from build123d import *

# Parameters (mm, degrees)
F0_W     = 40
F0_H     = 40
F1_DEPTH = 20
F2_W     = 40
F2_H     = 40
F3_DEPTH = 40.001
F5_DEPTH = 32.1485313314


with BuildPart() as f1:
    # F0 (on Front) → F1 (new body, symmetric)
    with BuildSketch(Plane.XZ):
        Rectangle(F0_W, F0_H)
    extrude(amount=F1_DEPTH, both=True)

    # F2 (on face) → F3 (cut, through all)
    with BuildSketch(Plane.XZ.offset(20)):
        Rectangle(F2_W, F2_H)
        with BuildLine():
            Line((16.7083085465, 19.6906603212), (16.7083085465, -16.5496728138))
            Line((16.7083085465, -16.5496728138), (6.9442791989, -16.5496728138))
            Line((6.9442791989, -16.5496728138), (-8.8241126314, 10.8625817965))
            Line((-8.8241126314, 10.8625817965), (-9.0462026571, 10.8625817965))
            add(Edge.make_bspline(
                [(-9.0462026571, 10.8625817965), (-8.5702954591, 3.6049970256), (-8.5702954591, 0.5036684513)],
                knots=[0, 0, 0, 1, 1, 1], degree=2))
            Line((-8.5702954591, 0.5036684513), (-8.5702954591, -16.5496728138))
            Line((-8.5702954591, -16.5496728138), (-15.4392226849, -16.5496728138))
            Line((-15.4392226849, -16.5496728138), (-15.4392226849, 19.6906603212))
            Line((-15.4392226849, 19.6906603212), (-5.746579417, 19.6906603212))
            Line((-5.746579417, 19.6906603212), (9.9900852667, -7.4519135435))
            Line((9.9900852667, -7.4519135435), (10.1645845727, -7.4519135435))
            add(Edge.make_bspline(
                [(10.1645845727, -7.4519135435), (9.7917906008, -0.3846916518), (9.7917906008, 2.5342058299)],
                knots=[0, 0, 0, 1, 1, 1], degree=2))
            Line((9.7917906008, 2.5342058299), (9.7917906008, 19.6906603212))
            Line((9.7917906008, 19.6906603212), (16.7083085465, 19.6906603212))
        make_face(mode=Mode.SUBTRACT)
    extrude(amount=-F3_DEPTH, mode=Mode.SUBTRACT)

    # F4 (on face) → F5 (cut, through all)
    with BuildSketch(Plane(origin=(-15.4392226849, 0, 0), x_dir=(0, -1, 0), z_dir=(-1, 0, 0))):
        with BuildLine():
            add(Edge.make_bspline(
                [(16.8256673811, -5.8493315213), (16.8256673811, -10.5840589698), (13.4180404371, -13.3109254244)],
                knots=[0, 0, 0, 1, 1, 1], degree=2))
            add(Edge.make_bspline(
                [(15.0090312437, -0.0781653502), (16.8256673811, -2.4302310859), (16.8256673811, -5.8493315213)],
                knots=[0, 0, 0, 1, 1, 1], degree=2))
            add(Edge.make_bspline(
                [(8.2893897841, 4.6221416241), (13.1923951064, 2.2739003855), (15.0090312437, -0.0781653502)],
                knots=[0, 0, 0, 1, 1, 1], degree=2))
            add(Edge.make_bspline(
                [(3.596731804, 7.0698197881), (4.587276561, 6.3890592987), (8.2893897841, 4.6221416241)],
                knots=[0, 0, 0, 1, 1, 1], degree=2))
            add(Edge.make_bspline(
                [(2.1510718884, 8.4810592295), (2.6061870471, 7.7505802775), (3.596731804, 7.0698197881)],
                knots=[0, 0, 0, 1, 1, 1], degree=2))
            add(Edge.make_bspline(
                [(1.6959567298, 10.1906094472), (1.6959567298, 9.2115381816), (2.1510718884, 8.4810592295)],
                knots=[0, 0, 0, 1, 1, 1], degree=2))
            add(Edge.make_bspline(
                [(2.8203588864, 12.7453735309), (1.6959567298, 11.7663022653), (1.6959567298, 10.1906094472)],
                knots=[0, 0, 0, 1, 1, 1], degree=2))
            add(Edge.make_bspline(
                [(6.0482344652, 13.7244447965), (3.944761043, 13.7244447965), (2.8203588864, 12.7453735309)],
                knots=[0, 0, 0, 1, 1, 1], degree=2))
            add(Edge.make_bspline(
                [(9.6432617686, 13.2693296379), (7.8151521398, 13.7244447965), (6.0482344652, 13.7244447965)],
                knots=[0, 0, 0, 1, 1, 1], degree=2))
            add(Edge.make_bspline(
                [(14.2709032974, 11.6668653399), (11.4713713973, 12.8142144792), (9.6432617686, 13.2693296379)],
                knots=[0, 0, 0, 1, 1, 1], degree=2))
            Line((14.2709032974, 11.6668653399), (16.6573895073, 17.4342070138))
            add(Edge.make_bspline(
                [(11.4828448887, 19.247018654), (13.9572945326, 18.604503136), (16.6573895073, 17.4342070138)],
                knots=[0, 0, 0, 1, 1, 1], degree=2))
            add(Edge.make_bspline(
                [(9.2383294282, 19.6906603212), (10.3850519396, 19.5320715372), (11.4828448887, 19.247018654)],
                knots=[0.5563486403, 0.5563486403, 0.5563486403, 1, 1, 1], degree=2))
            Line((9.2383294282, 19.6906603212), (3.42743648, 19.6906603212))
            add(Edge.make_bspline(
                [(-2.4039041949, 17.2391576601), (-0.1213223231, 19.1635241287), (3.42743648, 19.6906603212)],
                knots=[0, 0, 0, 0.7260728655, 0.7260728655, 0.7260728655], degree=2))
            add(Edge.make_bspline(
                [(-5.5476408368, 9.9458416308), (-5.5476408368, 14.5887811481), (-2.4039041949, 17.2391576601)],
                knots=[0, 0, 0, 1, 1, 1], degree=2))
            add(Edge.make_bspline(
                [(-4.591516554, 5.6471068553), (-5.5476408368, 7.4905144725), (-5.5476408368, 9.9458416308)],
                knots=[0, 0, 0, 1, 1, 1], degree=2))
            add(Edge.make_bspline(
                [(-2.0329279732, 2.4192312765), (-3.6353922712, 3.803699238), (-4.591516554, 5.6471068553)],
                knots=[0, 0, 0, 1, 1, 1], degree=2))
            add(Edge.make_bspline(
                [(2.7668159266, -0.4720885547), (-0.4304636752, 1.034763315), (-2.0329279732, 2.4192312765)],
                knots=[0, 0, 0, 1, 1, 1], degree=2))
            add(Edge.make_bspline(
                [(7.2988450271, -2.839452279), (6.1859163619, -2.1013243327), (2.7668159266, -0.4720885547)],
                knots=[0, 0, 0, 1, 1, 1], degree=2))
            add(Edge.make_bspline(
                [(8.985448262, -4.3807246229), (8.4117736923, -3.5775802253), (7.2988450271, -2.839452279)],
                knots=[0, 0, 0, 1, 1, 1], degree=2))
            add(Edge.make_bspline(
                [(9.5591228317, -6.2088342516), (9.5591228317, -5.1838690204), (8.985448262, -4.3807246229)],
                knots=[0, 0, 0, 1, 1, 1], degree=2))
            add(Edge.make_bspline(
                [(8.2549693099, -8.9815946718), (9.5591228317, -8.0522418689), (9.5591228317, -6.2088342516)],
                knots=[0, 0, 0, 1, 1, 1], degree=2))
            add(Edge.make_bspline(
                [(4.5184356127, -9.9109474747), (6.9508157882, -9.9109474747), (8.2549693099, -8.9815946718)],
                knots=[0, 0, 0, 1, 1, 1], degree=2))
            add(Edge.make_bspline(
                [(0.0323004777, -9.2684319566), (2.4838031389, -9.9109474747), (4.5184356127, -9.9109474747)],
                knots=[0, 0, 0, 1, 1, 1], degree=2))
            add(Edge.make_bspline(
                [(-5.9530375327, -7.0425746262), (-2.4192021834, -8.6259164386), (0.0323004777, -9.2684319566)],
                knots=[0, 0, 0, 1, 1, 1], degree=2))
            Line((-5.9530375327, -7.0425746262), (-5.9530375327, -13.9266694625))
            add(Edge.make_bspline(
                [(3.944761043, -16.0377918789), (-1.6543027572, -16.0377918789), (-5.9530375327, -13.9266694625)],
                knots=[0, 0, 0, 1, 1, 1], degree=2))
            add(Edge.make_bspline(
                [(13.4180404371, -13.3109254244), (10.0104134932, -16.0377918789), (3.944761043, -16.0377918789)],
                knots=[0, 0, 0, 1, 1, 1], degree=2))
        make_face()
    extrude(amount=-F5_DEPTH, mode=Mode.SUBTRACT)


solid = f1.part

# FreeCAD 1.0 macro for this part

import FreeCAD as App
import Part
import Sketcher
from FreeCAD import Vector

doc = App.newDocument("Part")
body = doc.addObject("PartDesign::Body", "Body")

# Sketch on XZ plane
sketch1 = doc.addObject("Sketcher::SketchObject", "Sketch")
body.addObject(sketch1)
sketch1.AttachmentSupport = (doc.XZ_Plane, [""])
sketch1.MapMode = "FlatFace"
sketch1.addGeometry(Part.LineSegment(Vector(-20, 20, 0), Vector(-20, -20, 0)), False)
sketch1.addGeometry(Part.LineSegment(Vector(-20, -20, 0), Vector(20, -20, 0)), False)
sketch1.addGeometry(Part.LineSegment(Vector(20, -20, 0), Vector(20, 20, 0)), False)
sketch1.addGeometry(Part.LineSegment(Vector(20, 20, 0), Vector(-20, 20, 0)), False)
sketch1.addConstraint(Sketcher.Constraint("Coincident", 0, 2, 1, 1))
sketch1.addConstraint(Sketcher.Constraint("Coincident", 1, 2, 2, 1))
sketch1.addConstraint(Sketcher.Constraint("Coincident", 2, 2, 3, 1))
sketch1.addConstraint(Sketcher.Constraint("Coincident", 3, 2, 0, 1))
sketch1.addConstraint(Sketcher.Constraint("Vertical", 0))
sketch1.addConstraint(Sketcher.Constraint("Horizontal", 1))
sketch1.addConstraint(Sketcher.Constraint("Vertical", 2))
sketch1.addConstraint(Sketcher.Constraint("Horizontal", 3))
sketch1.addConstraint(Sketcher.Constraint("Symmetric", 0, 2, 2, 2, -1, 1))
sketch1.addConstraint(Sketcher.Constraint("Equal", 3, 0))
sketch1.addConstraint(Sketcher.Constraint("DistanceX", 1, 1, 1, 2, 40.0))
pad1 = doc.addObject("PartDesign::Pad", "Pad")
body.addObject(pad1)
pad1.Profile = sketch1
pad1.Length = 40
pad1.Midplane = True

# Sketch on XZ plane
sketch2 = doc.addObject("Sketcher::SketchObject", "Sketch001")
body.addObject(sketch2)
sketch2.AttachmentSupport = (doc.XZ_Plane, [""])
sketch2.MapMode = "FlatFace"
sketch2.AttachmentOffset = App.Placement(Vector(0, 0, 20), App.Rotation())
sketch2.addGeometry(Part.LineSegment(Vector(-20, 20, 0), Vector(-20, -20, 0)), False)
sketch2.addGeometry(Part.LineSegment(Vector(-20, -20, 0), Vector(20, -20, 0)), False)
sketch2.addGeometry(Part.LineSegment(Vector(20, -20, 0), Vector(20, 20, 0)), False)
sketch2.addGeometry(Part.LineSegment(Vector(20, 20, 0), Vector(-20, 20, 0)), False)
sketch2.addGeometry(Part.LineSegment(Vector(9.791791, 19.69066, 0), Vector(16.708309, 19.69066, 0)), False)
sketch2.addGeometry(Part.LineSegment(Vector(16.708309, 19.69066, 0), Vector(16.708309, -16.549673, 0)), False)
sketch2.addGeometry(Part.LineSegment(Vector(16.708309, -16.549673, 0), Vector(6.944279, -16.549673, 0)), False)
sketch2.addGeometry(Part.LineSegment(Vector(6.944279, -16.549673, 0), Vector(-8.824113, 10.862582, 0)), False)
sketch2.addGeometry(Part.LineSegment(Vector(-8.824113, 10.862582, 0), Vector(-9.046203, 10.862582, 0)), False)
sketch2.addGeometry(Part.BSplineCurve([Vector(-9.046203, 10.862582, 0), Vector(-8.570295, 3.604997, 0), Vector(-8.570295, 0.503668, 0)], [3, 3], [0, 1], False, 2, [1, 1, 1], False), False)
sketch2.addGeometry(Part.LineSegment(Vector(-8.570295, 0.503668, 0), Vector(-8.570295, -16.549673, 0)), False)
sketch2.addGeometry(Part.LineSegment(Vector(-8.570295, -16.549673, 0), Vector(-15.439223, -16.549673, 0)), False)
sketch2.addGeometry(Part.LineSegment(Vector(-15.439223, -16.549673, 0), Vector(-15.439223, 19.69066, 0)), False)
sketch2.addGeometry(Part.LineSegment(Vector(-15.439223, 19.69066, 0), Vector(-5.746579, 19.69066, 0)), False)
sketch2.addGeometry(Part.LineSegment(Vector(-5.746579, 19.69066, 0), Vector(9.990085, -7.451914, 0)), False)
sketch2.addGeometry(Part.LineSegment(Vector(9.990085, -7.451914, 0), Vector(10.164585, -7.451914, 0)), False)
sketch2.addGeometry(Part.BSplineCurve([Vector(10.164585, -7.451914, 0), Vector(9.791791, -0.384692, 0), Vector(9.791791, 2.534206, 0)], [3, 3], [0, 1], False, 2, [1, 1, 1], False), False)
sketch2.addGeometry(Part.LineSegment(Vector(9.791791, 2.534206, 0), Vector(9.791791, 19.69066, 0)), False)
sketch2.addConstraint(Sketcher.Constraint("Block", 9))
sketch2.addConstraint(Sketcher.Constraint("Block", 16))
sketch2.addConstraint(Sketcher.Constraint("Coincident", 0, 2, 1, 1))
sketch2.addConstraint(Sketcher.Constraint("Coincident", 1, 2, 2, 1))
sketch2.addConstraint(Sketcher.Constraint("Coincident", 2, 2, 3, 1))
sketch2.addConstraint(Sketcher.Constraint("Coincident", 3, 2, 0, 1))
sketch2.addConstraint(Sketcher.Constraint("Coincident", 4, 2, 5, 1))
sketch2.addConstraint(Sketcher.Constraint("Coincident", 5, 2, 6, 1))
sketch2.addConstraint(Sketcher.Constraint("Coincident", 6, 2, 7, 1))
sketch2.addConstraint(Sketcher.Constraint("Coincident", 7, 2, 8, 1))
sketch2.addConstraint(Sketcher.Constraint("Coincident", 8, 2, 9, 1))
sketch2.addConstraint(Sketcher.Constraint("Coincident", 9, 2, 10, 1))
sketch2.addConstraint(Sketcher.Constraint("Coincident", 10, 2, 11, 1))
sketch2.addConstraint(Sketcher.Constraint("Coincident", 11, 2, 12, 1))
sketch2.addConstraint(Sketcher.Constraint("Coincident", 12, 2, 13, 1))
sketch2.addConstraint(Sketcher.Constraint("Coincident", 13, 2, 14, 1))
sketch2.addConstraint(Sketcher.Constraint("Coincident", 14, 2, 15, 1))
sketch2.addConstraint(Sketcher.Constraint("Coincident", 15, 2, 16, 1))
sketch2.addConstraint(Sketcher.Constraint("Coincident", 16, 2, 17, 1))
sketch2.addConstraint(Sketcher.Constraint("Coincident", 17, 2, 4, 1))
sketch2.addConstraint(Sketcher.Constraint("Vertical", 0))
sketch2.addConstraint(Sketcher.Constraint("Horizontal", 1))
sketch2.addConstraint(Sketcher.Constraint("Vertical", 2))
sketch2.addConstraint(Sketcher.Constraint("Horizontal", 3))
sketch2.addConstraint(Sketcher.Constraint("Horizontal", 4))
sketch2.addConstraint(Sketcher.Constraint("Vertical", 5))
sketch2.addConstraint(Sketcher.Constraint("Horizontal", 6))
sketch2.addConstraint(Sketcher.Constraint("Horizontal", 8))
sketch2.addConstraint(Sketcher.Constraint("Vertical", 10))
sketch2.addConstraint(Sketcher.Constraint("Horizontal", 11))
sketch2.addConstraint(Sketcher.Constraint("Vertical", 12))
sketch2.addConstraint(Sketcher.Constraint("Horizontal", 13))
sketch2.addConstraint(Sketcher.Constraint("Horizontal", 15))
sketch2.addConstraint(Sketcher.Constraint("Vertical", 17))
sketch2.addConstraint(Sketcher.Constraint("Symmetric", 0, 2, 2, 2, -1, 1))
sketch2.addConstraint(Sketcher.Constraint("Horizontal", 6, 2, 10, 2))
sketch2.addConstraint(Sketcher.Constraint("Horizontal", 4, 2, 12, 2))
sketch2.addConstraint(Sketcher.Constraint("Equal", 3, 0))
sketch2.addConstraint(Sketcher.Constraint("DistanceX", 1, 1, 1, 2, 40.0))
sketch2.addConstraint(Sketcher.Constraint("DistanceX", 15, 1, 15, 2, 0.174499))
sketch2.addConstraint(Sketcher.Constraint("DistanceX", 6, 2, 6, 1, 9.764029))
sketch2.addConstraint(Sketcher.Constraint("DistanceX", 8, 2, 8, 1, 0.22209))
sketch2.addConstraint(Sketcher.Constraint("DistanceY", 10, 2, 10, 1, 17.053341))
sketch2.addConstraint(Sketcher.Constraint("DistanceX", 11, 2, 6, 2, 22.383502))
sketch2.addConstraint(Sketcher.Constraint("DistanceX", 4, 1, 4, 2, 6.916518))
sketch2.addConstraint(Sketcher.Constraint("DistanceX", 13, 1, 13, 2, 9.692643))
sketch2.addConstraint(Sketcher.Constraint("DistanceY", 5, 2, 5, 1, 36.240333))
pocket1 = doc.addObject("PartDesign::Pocket", "Pocket")
body.addObject(pocket1)
pocket1.Profile = sketch2
pocket1.Type = "ThroughAll"

# Sketch on YZ plane
sketch3 = doc.addObject("Sketcher::SketchObject", "Sketch002")
body.addObject(sketch3)
sketch3.AttachmentSupport = (doc.YZ_Plane, [""])
sketch3.MapMode = "FlatFace"
sketch3.AttachmentOffset = App.Placement(Vector(0, 0, -15.439223), App.Rotation())
sketch3.addGeometry(Part.BSplineCurve([Vector(-15.009031, -0.078165, 0), Vector(-16.825667, -2.430231, 0), Vector(-16.825667, -10.584059, 0), Vector(-13.41804, -13.310925, 0)], [3, 1, 3], [0, 1, 2.384787472], False, 2, [1, 1, 1, 1], False), False)
sketch3.addGeometry(Part.BSplineCurve([Vector(-8.28939, 4.622142, 0), Vector(-13.192395, 2.2739, 0), Vector(-15.009031, -0.078165, 0)], [3, 3], [0, 1], False, 2, [1, 1, 1], False), False)
sketch3.addGeometry(Part.BSplineCurve([Vector(-3.596732, 7.06982, 0), Vector(-4.587277, 6.389059, 0), Vector(-8.28939, 4.622142, 0)], [3, 3], [0, 1], False, 2, [1, 1, 1], False), False)
sketch3.addGeometry(Part.BSplineCurve([Vector(-2.151072, 8.481059, 0), Vector(-2.606187, 7.75058, 0), Vector(-3.596732, 7.06982, 0)], [3, 3], [0, 1], False, 2, [1, 1, 1], False), False)
sketch3.addGeometry(Part.BSplineCurve([Vector(-9.643262, 13.26933, 0), Vector(-7.815152, 13.724445, 0), Vector(-3.944761, 13.724445, 0), Vector(-1.695957, 11.766302, 0), Vector(-1.695957, 9.211538, 0), Vector(-2.151072, 8.481059, 0)], [3, 1, 1, 1, 3], [0, 1, 2.190476191, 3.380952381, 4.120665742], False, 2, [1, 1, 1, 1, 1, 1], False), False)
sketch3.addGeometry(Part.BSplineCurve([Vector(-14.270903, 11.666865, 0), Vector(-11.471371, 12.814214, 0), Vector(-9.643262, 13.26933, 0)], [3, 3], [0, 1], False, 2, [1, 1, 1], False), False)
sketch3.addGeometry(Part.LineSegment(Vector(-14.270903, 11.666865, 0), Vector(-16.65739, 17.434207, 0)), False)
sketch3.addGeometry(Part.BSplineCurve([Vector(-11.482845, 19.247019, 0), Vector(-13.957295, 18.604503, 0), Vector(-16.65739, 17.434207, 0)], [3, 3], [0, 1], False, 2, [1, 1, 1], False), False)
sketch3.addGeometry(Part.BSplineCurve([Vector(-9.238329, 19.69066, 0), Vector(-10.385052, 19.532072, 0), Vector(-11.482845, 19.247019, 0)], [3, 3], [0.55634864, 1], False, 2, [1, 1, 1], False), False)
sketch3.addGeometry(Part.LineSegment(Vector(-9.238329, 19.69066, 0), Vector(-3.427436, 19.69066, 0)), False)
sketch3.addGeometry(Part.BSplineCurve([Vector(2.403904, 17.239158, 0), Vector(0.121322, 19.163524, 0), Vector(-3.427436, 19.69066, 0)], [3, 3], [0, 0.726072866], False, 2, [1, 1, 1], False), False)
sketch3.addGeometry(Part.BSplineCurve([Vector(4.591517, 5.647107, 0), Vector(5.547641, 7.490514, 0), Vector(5.547641, 14.588781, 0), Vector(2.403904, 17.239158, 0)], [3, 1, 3], [0, 1, 2.890965732], False, 2, [1, 1, 1, 1], False), False)
sketch3.addGeometry(Part.BSplineCurve([Vector(-2.766816, -0.472089, 0), Vector(0.430464, 1.034763, 0), Vector(3.635392, 3.803699, 0), Vector(4.591517, 5.647107, 0)], [3, 1, 3], [0, 1, 2], False, 2, [1, 1, 1, 1], False), False)
sketch3.addGeometry(Part.BSplineCurve([Vector(-8.985448, -4.380725, 0), Vector(-8.411774, -3.57758, 0), Vector(-6.185916, -2.101324, 0), Vector(-2.766816, -0.472089, 0)], [3, 1, 3], [0, 1, 2], False, 2, [1, 1, 1, 1], False), False)
sketch3.addGeometry(Part.BSplineCurve([Vector(-8.254969, -8.981595, 0), Vector(-9.559123, -8.052242, 0), Vector(-9.559123, -5.183869, 0), Vector(-8.985448, -4.380725, 0)], [3, 1, 3], [0, 1, 1.556016598], False, 2, [1, 1, 1, 1], False), False)
sketch3.addGeometry(Part.BSplineCurve([Vector(-0.0323, -9.268432, 0), Vector(-2.483803, -9.910947, 0), Vector(-6.950816, -9.910947, 0), Vector(-8.254969, -8.981595, 0)], [3, 1, 3], [0, 1, 2.195488722], False, 2, [1, 1, 1, 1], False), False)
sketch3.addGeometry(Part.BSplineCurve([Vector(5.953038, -7.042575, 0), Vector(2.419202, -8.625916, 0), Vector(-0.0323, -9.268432, 0)], [3, 3], [0, 1], False, 2, [1, 1, 1], False), False)
sketch3.addGeometry(Part.LineSegment(Vector(5.953038, -7.042575, 0), Vector(5.953038, -13.926669, 0)), False)
sketch3.addGeometry(Part.BSplineCurve([Vector(-13.41804, -13.310925, 0), Vector(-10.010413, -16.037792, 0), Vector(1.654303, -16.037792, 0), Vector(5.953038, -13.926669, 0)], [3, 1, 3], [0, 1, 1.923076923], False, 2, [1, 1, 1, 1], False), False)
sketch3.addConstraint(Sketcher.Constraint("Block", 0))
sketch3.addConstraint(Sketcher.Constraint("Block", 1))
sketch3.addConstraint(Sketcher.Constraint("Block", 2))
sketch3.addConstraint(Sketcher.Constraint("Block", 3))
sketch3.addConstraint(Sketcher.Constraint("Block", 4))
sketch3.addConstraint(Sketcher.Constraint("Block", 5))
sketch3.addConstraint(Sketcher.Constraint("Block", 7))
sketch3.addConstraint(Sketcher.Constraint("Block", 8))
sketch3.addConstraint(Sketcher.Constraint("Block", 10))
sketch3.addConstraint(Sketcher.Constraint("Block", 11))
sketch3.addConstraint(Sketcher.Constraint("Block", 12))
sketch3.addConstraint(Sketcher.Constraint("Block", 13))
sketch3.addConstraint(Sketcher.Constraint("Block", 14))
sketch3.addConstraint(Sketcher.Constraint("Block", 15))
sketch3.addConstraint(Sketcher.Constraint("Block", 16))
sketch3.addConstraint(Sketcher.Constraint("Block", 18))
sketch3.addConstraint(Sketcher.Constraint("Coincident", 5, 1, 6, 1))
sketch3.addConstraint(Sketcher.Constraint("Coincident", 6, 2, 7, 2))
sketch3.addConstraint(Sketcher.Constraint("Coincident", 8, 1, 9, 1))
sketch3.addConstraint(Sketcher.Constraint("Coincident", 9, 2, 10, 2))
sketch3.addConstraint(Sketcher.Constraint("Coincident", 16, 1, 17, 1))
sketch3.addConstraint(Sketcher.Constraint("Coincident", 17, 2, 18, 2))
pocket2 = doc.addObject("PartDesign::Pocket", "Pocket001")
body.addObject(pocket2)
pocket2.Profile = sketch3
pocket2.Type = "ThroughAll"
pocket2.Reversed = True

doc.recompute()
